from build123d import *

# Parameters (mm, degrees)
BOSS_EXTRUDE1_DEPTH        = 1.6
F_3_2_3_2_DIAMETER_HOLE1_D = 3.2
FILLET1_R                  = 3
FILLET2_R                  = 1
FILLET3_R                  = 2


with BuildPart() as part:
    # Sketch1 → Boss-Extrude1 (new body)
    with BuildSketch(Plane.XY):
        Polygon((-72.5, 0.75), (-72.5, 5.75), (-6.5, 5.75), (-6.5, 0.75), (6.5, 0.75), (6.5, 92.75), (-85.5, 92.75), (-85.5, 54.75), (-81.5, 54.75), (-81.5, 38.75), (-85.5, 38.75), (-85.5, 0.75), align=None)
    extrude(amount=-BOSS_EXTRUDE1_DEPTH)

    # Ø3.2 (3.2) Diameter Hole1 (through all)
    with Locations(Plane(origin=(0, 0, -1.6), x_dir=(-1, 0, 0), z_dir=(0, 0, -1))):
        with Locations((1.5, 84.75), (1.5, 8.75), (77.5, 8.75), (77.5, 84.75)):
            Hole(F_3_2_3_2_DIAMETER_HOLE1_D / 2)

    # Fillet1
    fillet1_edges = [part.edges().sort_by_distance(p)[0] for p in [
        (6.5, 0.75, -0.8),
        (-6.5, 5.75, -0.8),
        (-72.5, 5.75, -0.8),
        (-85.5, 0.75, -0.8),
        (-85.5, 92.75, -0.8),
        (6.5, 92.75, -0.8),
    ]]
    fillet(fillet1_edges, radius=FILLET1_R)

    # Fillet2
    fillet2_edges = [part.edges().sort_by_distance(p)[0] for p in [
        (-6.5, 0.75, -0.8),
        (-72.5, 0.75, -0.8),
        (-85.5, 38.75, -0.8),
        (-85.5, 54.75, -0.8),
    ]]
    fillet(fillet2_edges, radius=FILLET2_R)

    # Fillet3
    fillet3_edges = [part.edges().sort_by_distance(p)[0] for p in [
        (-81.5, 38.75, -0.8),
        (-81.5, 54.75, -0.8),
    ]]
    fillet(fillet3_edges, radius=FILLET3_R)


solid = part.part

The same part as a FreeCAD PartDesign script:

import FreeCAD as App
import Part
import Sketcher
Q = App.Units.Quantity


def edges_at(feature, points):
    """Names of the edges that pass closest to the given points."""
    edges = feature.Shape.Edges
    near = lambda p: min(range(len(edges)), key=lambda i: edges[i].distToShape(Part.Vertex(*p))[0])
    return sorted({f"Edge{near(p) + 1}" for p in points})


def add_polygon(sketch, points):
    """Adds a closed chain of lines whose ends are joined by coincident constraints."""
    first, n = sketch.GeometryCount, len(points)
    for a, b in zip(points, points[1:] + points[:1]):
        sketch.addGeometry(Part.LineSegment(App.Vector(*a, 0), App.Vector(*b, 0)), False)
    for i in range(n):
        sketch.addConstraint(Sketcher.Constraint("Coincident", first + i, 2, first + (i + 1) % n, 1))

doc = App.newDocument("Part")
body = doc.addObject("PartDesign::Body", "Body")

sketch1 = body.newObject("Sketcher::SketchObject", "Sketch")
sketch1.AttachmentSupport = (doc.getObject("XY_Plane"), [""])
sketch1.MapMode = "FlatFace"
add_polygon(sketch1, [(-72.5, 0.8), (-72.5, 5.8), (-6.5, 5.8), (-6.5, 0.8), (6.5, 0.8), (6.5, 92.8), (-85.5, 92.8), (-85.5, 54.8), (-81.5, 54.8), (-81.5, 38.8), (-85.5, 38.8), (-85.5, 0.8)])
sketch1.addConstraint([
    Sketcher.Constraint("Vertical", 0),
    Sketcher.Constraint("Horizontal", 1),
    Sketcher.Constraint("Vertical", 2),
    Sketcher.Constraint("Horizontal", 3),
    Sketcher.Constraint("Vertical", 4),
    Sketcher.Constraint("Horizontal", 5),
    Sketcher.Constraint("Vertical", 6),
    Sketcher.Constraint("Horizontal", 7),
    Sketcher.Constraint("Vertical", 8),
    Sketcher.Constraint("Horizontal", 9),
    Sketcher.Constraint("Vertical", 10),
    Sketcher.Constraint("Horizontal", 11),
    Sketcher.Constraint("Horizontal", 3, 2, 10, 2),
    Sketcher.Constraint("Vertical", 6, 2, 9, 2),
    Sketcher.Constraint("Equal", 3, 11),
    Sketcher.Constraint("Equal", 5, 4),
    Sketcher.Constraint("Equal", 6, 10),
    Sketcher.Constraint("DistanceX", 1, 1, 1, 2, Q("66 mm")),
    Sketcher.Constraint("DistanceX", 3, 1, 3, 2, Q("13 mm")),
    Sketcher.Constraint("DistanceX", 7, 1, 7, 2, Q("4 mm")),
    Sketcher.Constraint("DistanceY", 0, 1, 0, 2, Q("5 mm")),
    Sketcher.Constraint("DistanceY", 6, 2, 6, 1, Q("38 mm")),
    Sketcher.Constraint("DistanceX", 0, 2, -1, 1, Q("72.5 mm")),
    Sketcher.Constraint("DistanceY", -1, 1, 0, 2, Q("5.75 mm")),
])
pad1 = body.newObject("PartDesign::Pad", "Pad")
pad1.Profile = sketch1
pad1.Length = 1.6
pad1.Reversed = True

sketch2 = body.newObject("Sketcher::SketchObject", "Sketch001")
sketch2.AttachmentSupport = (doc.getObject("XY_Plane"), [""])
sketch2.MapMode = "FlatFace"
sketch2.AttachmentOffset = App.Placement(App.Vector(0, 0, -1.6), App.Rotation())
sketch2.addGeometry([
    Part.Circle(App.Vector(-1.5, 84.8, 0), App.Vector(0, 0, 1), 1.6),
    Part.Circle(App.Vector(-1.5, 8.8, 0), App.Vector(0, 0, 1), 1.6),
    Part.Circle(App.Vector(-77.5, 8.8, 0), App.Vector(0, 0, 1), 1.6),
    Part.Circle(App.Vector(-77.5, 84.8, 0), App.Vector(0, 0, 1), 1.6),
], False)
sketch2.addConstraint([
    Sketcher.Constraint("Equal", 0, 1),
    Sketcher.Constraint("Equal", 1, 2),
    Sketcher.Constraint("Equal", 2, 3),
    Sketcher.Constraint("Horizontal", 1, 3, 2, 3),
    Sketcher.Constraint("Horizontal", 0, 3, 3, 3),
    Sketcher.Constraint("Vertical", 0, 3, 1, 3),
    Sketcher.Constraint("Vertical", 2, 3, 3, 3),
    Sketcher.Constraint("Diameter", 0, Q("3.2 mm")),
    Sketcher.Constraint("DistanceY", 1, 3, 0, 3, Q("76 mm")),
    Sketcher.Constraint("DistanceX", 2, 3, 1, 3, Q("76 mm")),
    Sketcher.Constraint("DistanceX", 0, 3, -1, 1, Q("1.5 mm")),
    Sketcher.Constraint("DistanceY", -1, 1, 0, 3, Q("84.75 mm")),
])
doc.recompute()
hole = body.newObject("PartDesign::Hole", "Hole")
hole.Profile = sketch2
hole.ThreadType = "None"
hole.Diameter = 3.2
hole.DepthType = "ThroughAll"
hole.Reversed = True
doc.recompute()

fillet = body.newObject("PartDesign::Fillet", "Fillet")
fillet.Base = (hole, edges_at(hole, [
    (6.5, 0.75, -0.8),
    (-6.5, 5.75, -0.8),
    (-72.5, 5.75, -0.8),
    (-85.5, 0.75, -0.8),
    (-85.5, 92.75, -0.8),
    (6.5, 92.75, -0.8),
]))
fillet.Radius = 3
doc.recompute()

fillet2 = body.newObject("PartDesign::Fillet", "Fillet001")
fillet2.Base = (fillet, edges_at(fillet, [
    (-6.5, 0.75, -0.8),
    (-72.5, 0.75, -0.8),
    (-85.5, 38.75, -0.8),
    (-85.5, 54.75, -0.8),
]))
fillet2.Radius = 1
doc.recompute()

fillet3 = body.newObject("PartDesign::Fillet", "Fillet002")
fillet3.Base = (fillet2, edges_at(fillet2, [(-81.5, 38.75, -0.8), (-81.5, 54.75, -0.8)]))
fillet3.Radius = 2

doc.recompute()
